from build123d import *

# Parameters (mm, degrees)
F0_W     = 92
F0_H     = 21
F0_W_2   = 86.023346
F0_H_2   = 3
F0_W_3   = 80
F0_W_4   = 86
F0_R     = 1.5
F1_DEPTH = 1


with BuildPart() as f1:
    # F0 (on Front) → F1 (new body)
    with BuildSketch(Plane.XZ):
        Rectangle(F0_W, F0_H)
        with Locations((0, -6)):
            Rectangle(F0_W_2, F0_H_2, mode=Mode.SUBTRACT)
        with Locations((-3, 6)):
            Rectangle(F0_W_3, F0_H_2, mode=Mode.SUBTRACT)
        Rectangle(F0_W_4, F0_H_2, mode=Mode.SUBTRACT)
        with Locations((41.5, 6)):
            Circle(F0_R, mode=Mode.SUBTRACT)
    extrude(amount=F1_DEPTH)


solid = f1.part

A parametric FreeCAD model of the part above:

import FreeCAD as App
import Part
import Sketcher

V = App.Vector
Q = App.Units.Quantity

doc = App.newDocument("Part")
body = doc.addObject("PartDesign::Body", "Body")

sketch1 = body.newObject("Sketcher::SketchObject", "Sketch")
sketch1.AttachmentSupport = (doc.getObject("XZ_Plane"), [""])
sketch1.MapMode = "FlatFace"
sketch1.addGeometry(Part.LineSegment(V(-46, 10.5, 0), V(-46, -10.5, 0)), False)
sketch1.addGeometry(Part.LineSegment(V(-46, -10.5, 0), V(46, -10.5, 0)), False)
sketch1.addGeometry(Part.LineSegment(V(46, -10.5, 0), V(46, 10.5, 0)), False)
sketch1.addGeometry(Part.LineSegment(V(46, 10.5, 0), V(-46, 10.5, 0)), False)
sketch1.addGeometry(Part.LineSegment(V(43, -7.5, 0), V(-43, -7.5, 0)), False)
sketch1.addGeometry(Part.LineSegment(V(-43, -7.5, 0), V(-43, -4.5, 0)), False)
sketch1.addGeometry(Part.LineSegment(V(-43, -4.5, 0), V(43, -4.5, 0)), False)
sketch1.addGeometry(Part.LineSegment(V(43, -4.5, 0), V(43, -7.5, 0)), False)
sketch1.addGeometry(Part.LineSegment(V(37, 4.5, 0), V(-43, 4.5, 0)), False)
sketch1.addGeometry(Part.LineSegment(V(-43, 4.5, 0), V(-43, 7.5, 0)), False)
sketch1.addGeometry(Part.LineSegment(V(-43, 7.5, 0), V(37, 7.5, 0)), False)
sketch1.addGeometry(Part.LineSegment(V(37, 7.5, 0), V(37, 4.5, 0)), False)
sketch1.addGeometry(Part.LineSegment(V(43, -1.5, 0), V(-43, -1.5, 0)), False)
sketch1.addGeometry(Part.LineSegment(V(-43, -1.5, 0), V(-43, 1.5, 0)), False)
sketch1.addGeometry(Part.LineSegment(V(-43, 1.5, 0), V(43, 1.5, 0)), False)
sketch1.addGeometry(Part.LineSegment(V(43, 1.5, 0), V(43, -1.5, 0)), False)
sketch1.addGeometry(Part.Circle(V(41.5, 6, 0), V(0, 0, 1), 1.5), False)
sketch1.addConstraint(Sketcher.Constraint("Coincident", 0, 2, 1, 1))
sketch1.addConstraint(Sketcher.Constraint("Coincident", 1, 2, 2, 1))
sketch1.addConstraint(Sketcher.Constraint("Coincident", 2, 2, 3, 1))
sketch1.addConstraint(Sketcher.Constraint("Coincident", 3, 2, 0, 1))
sketch1.addConstraint(Sketcher.Constraint("Coincident", 4, 2, 5, 1))
sketch1.addConstraint(Sketcher.Constraint("Coincident", 5, 2, 6, 1))
sketch1.addConstraint(Sketcher.Constraint("Coincident", 6, 2, 7, 1))
sketch1.addConstraint(Sketcher.Constraint("Coincident", 7, 2, 4, 1))
sketch1.addConstraint(Sketcher.Constraint("Coincident", 8, 2, 9, 1))
sketch1.addConstraint(Sketcher.Constraint("Coincident", 9, 2, 10, 1))
sketch1.addConstraint(Sketcher.Constraint("Coincident", 10, 2, 11, 1))
sketch1.addConstraint(Sketcher.Constraint("Coincident", 11, 2, 8, 1))
sketch1.addConstraint(Sketcher.Constraint("Coincident", 12, 2, 13, 1))
sketch1.addConstraint(Sketcher.Constraint("Coincident", 13, 2, 14, 1))
sketch1.addConstraint(Sketcher.Constraint("Coincident", 14, 2, 15, 1))
sketch1.addConstraint(Sketcher.Constraint("Coincident", 15, 2, 12, 1))
sketch1.addConstraint(Sketcher.Constraint("Vertical", 0))
sketch1.addConstraint(Sketcher.Constraint("Horizontal", 1))
sketch1.addConstraint(Sketcher.Constraint("Vertical", 2))
sketch1.addConstraint(Sketcher.Constraint("Horizontal", 3))
sketch1.addConstraint(Sketcher.Constraint("Horizontal", 4))
sketch1.addConstraint(Sketcher.Constraint("Vertical", 5))
sketch1.addConstraint(Sketcher.Constraint("Horizontal", 6))
sketch1.addConstraint(Sketcher.Constraint("Vertical", 7))
sketch1.addConstraint(Sketcher.Constraint("Horizontal", 8))
sketch1.addConstraint(Sketcher.Constraint("Vertical", 9))
sketch1.addConstraint(Sketcher.Constraint("Horizontal", 10))
sketch1.addConstraint(Sketcher.Constraint("Vertical", 11))
sketch1.addConstraint(Sketcher.Constraint("Horizontal", 12))
sketch1.addConstraint(Sketcher.Constraint("Vertical", 13))
sketch1.addConstraint(Sketcher.Constraint("Horizontal", 14))
sketch1.addConstraint(Sketcher.Constraint("Vertical", 15))
sketch1.addConstraint(Sketcher.Constraint("Symmetric", 0, 2, 2, 2, -1, 1))
sketch1.addConstraint(Sketcher.Constraint("Symmetric", 12, 2, 14, 2, -1, 1))
sketch1.addConstraint(Sketcher.Constraint("Vertical", 9, 2, 12, 2))
sketch1.addConstraint(Sketcher.Constraint("Equal", 7, 9))
sketch1.addConstraint(Sketcher.Constraint("Equal", 11, 13))
sketch1.addConstraint(Sketcher.Constraint("Diameter", 16, Q("3 mm")))
sketch1.addConstraint(Sketcher.Constraint("DistanceX", 1, 1, 1, 2, Q("92 mm")))
sketch1.addConstraint(Sketcher.Constraint("DistanceX", 8, 2, 8, 1, Q("80 mm")))
sketch1.addConstraint(Sketcher.Constraint("DistanceX", 12, 2, 12, 1, Q("86 mm")))
sketch1.addConstraint(Sketcher.Constraint("DistanceY", 0, 2, 0, 1, Q("21 mm")))
sketch1.addConstraint(Sketcher.Constraint("DistanceY", 5, 1, 5, 2, Q("3 mm")))
sketch1.addConstraint(Sketcher.Constraint("DistanceY", -1, 1, 16, 3, Q("6 mm")))
sketch1.addConstraint(Sketcher.Constraint("DistanceY", 0, 2, 4, 2, Q("3 mm")))
sketch1.addConstraint(Sketcher.Constraint("DistanceY", 8, 2, 3, 2, Q("6 mm")))
sketch1.addConstraint(Sketcher.Constraint("DistanceX", -1, 1, 16, 3, Q("41.5 mm")))
sketch1.addConstraint(Sketcher.Constraint("DistanceX", 4, 2, 4, 1, Q("86.023346 mm")))
sketch1.addConstraint(Sketcher.Constraint("DistanceX", 4, 2, -1, 1, Q("43.011673 mm")))
pad1 = body.newObject("PartDesign::Pad", "Pad")
pad1.Profile = sketch1
pad1.Length = 1

doc.recompute()
